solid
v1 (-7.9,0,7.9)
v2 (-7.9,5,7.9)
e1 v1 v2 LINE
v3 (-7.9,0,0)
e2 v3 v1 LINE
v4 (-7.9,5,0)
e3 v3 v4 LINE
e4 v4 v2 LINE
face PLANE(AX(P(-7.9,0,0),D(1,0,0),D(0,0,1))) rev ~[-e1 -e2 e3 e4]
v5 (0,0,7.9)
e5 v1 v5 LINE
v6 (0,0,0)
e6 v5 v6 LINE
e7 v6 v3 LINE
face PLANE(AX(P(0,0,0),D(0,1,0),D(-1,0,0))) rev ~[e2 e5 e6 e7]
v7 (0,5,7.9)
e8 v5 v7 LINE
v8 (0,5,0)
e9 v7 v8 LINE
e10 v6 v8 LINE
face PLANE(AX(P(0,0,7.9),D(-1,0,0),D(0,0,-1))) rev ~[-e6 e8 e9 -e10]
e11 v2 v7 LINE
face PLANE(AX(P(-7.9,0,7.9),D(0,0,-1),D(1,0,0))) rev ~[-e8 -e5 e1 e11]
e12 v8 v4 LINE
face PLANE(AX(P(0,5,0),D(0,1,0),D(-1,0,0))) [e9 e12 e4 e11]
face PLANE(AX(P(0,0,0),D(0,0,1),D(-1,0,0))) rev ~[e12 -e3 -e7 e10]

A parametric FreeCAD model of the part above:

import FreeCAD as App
import Part
import Sketcher

V = App.Vector
Q = App.Units.Quantity

doc = App.newDocument("Part")
body = doc.addObject("PartDesign::Body", "Body")

sketch1 = body.newObject("Sketcher::SketchObject", "Sketch")
sketch1.AttachmentSupport = (doc.getObject("XZ_Plane"), [""])
sketch1.MapMode = "FlatFace"
sketch1.addGeometry(Part.LineSegment(V(0, 8, 0), V(0, 0, 0)), False)
sketch1.addGeometry(Part.LineSegment(V(0, 0, 0), V(-8, 0, 0)), False)
sketch1.addGeometry(Part.LineSegment(V(-8, 0, 0), V(-8, 8, 0)), False)
sketch1.addGeometry(Part.LineSegment(V(-8, 8, 0), V(0, 8, 0)), False)
sketch1.addConstraint(Sketcher.Constraint("Coincident", 0, 2, 1, 1))
sketch1.addConstraint(Sketcher.Constraint("Coincident", 1, 2, 2, 1))
sketch1.addConstraint(Sketcher.Constraint("Coincident", 2, 2, 3, 1))
sketch1.addConstraint(Sketcher.Constraint("Coincident", 3, 2, 0, 1))
sketch1.addConstraint(Sketcher.Constraint("Vertical", 0))
sketch1.addConstraint(Sketcher.Constraint("Horizontal", 1))
sketch1.addConstraint(Sketcher.Constraint("Vertical", 2))
sketch1.addConstraint(Sketcher.Constraint("Horizontal", 3))
sketch1.addConstraint(Sketcher.Constraint("Coincident", 0, 2, -1, 1))
sketch1.addConstraint(Sketcher.Constraint("Equal", 3, 0))
sketch1.addConstraint(Sketcher.Constraint("DistanceX", 1, 2, 1, 1, Q("7.9 mm")))
pad1 = body.newObject("PartDesign::Pad", "Pad")
pad1.Profile = sketch1
pad1.Length = 5
pad1.Reversed = True

doc.recompute()
